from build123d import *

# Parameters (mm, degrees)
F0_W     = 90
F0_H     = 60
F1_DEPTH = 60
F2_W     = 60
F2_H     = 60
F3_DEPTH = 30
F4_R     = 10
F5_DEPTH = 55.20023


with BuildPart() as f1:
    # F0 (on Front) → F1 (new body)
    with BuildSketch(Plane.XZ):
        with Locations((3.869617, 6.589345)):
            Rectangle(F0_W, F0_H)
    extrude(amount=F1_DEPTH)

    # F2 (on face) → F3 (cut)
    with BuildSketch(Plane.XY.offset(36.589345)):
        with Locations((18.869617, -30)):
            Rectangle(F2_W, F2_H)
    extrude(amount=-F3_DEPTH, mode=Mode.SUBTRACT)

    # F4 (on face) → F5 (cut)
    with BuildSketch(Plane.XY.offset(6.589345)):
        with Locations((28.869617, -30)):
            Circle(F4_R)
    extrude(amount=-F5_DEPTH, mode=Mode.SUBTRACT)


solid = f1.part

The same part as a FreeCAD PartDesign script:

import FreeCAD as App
import Part
import Sketcher
from FreeCAD import Vector
Q = App.Units.Quantity


def add_polygon(sketch, points):
    """Adds a closed chain of lines whose ends are joined by coincident constraints."""
    first, n = sketch.GeometryCount, len(points)
    for a, b in zip(points, points[1:] + points[:1]):
        sketch.addGeometry(Part.LineSegment(App.Vector(*a, 0), App.Vector(*b, 0)), False)
    for i in range(n):
        sketch.addConstraint(Sketcher.Constraint("Coincident", first + i, 2, first + (i + 1) % n, 1))

doc = App.newDocument("Part")
params = doc.addObject("Spreadsheet::Sheet", "Params")
for row, (alias, value) in enumerate([
    ("sketch1_width", "90 mm"),
    ("sketch1_height", "60 mm"),
    ("pad1_length", "60 mm"),
    ("sketch2_width", "60 mm"),
    ("pocket1_length", "30 mm"),
    ("sketch3_diameter", "20 mm"),
    ("pocket2_length", "55.20023 mm"),
], start=1):
    params.set(f"A{row}", alias)
    params.set(f"B{row}", "=" + value)
    params.setAlias(f"B{row}", alias)

body = doc.addObject("PartDesign::Body", "Body")

# Sketch on XZ plane
sketch1 = doc.addObject("Sketcher::SketchObject", "Sketch")
body.addObject(sketch1)
sketch1.AttachmentSupport = (doc.XZ_Plane, [""])
sketch1.MapMode = "FlatFace"
add_polygon(sketch1, [(-41, 37), (-41, -23), (49, -23), (49, 37)])  # lines 0-3
sketch1.addConstraint(Sketcher.Constraint("Vertical", 0))
sketch1.addConstraint(Sketcher.Constraint("Horizontal", 1))
sketch1.addConstraint(Sketcher.Constraint("Vertical", 2))
sketch1.addConstraint(Sketcher.Constraint("Horizontal", 3))
sketch1.addConstraint(Sketcher.Constraint("DistanceX", 1, 1, 1, 2, Q("90 mm")))
sketch1.addConstraint(Sketcher.Constraint("DistanceY", 0, 2, 0, 1, Q("60 mm")))
sketch1.addConstraint(Sketcher.Constraint("DistanceX", 0, 2, -1, 1, Q("41.130383 mm")))
sketch1.addConstraint(Sketcher.Constraint("DistanceY", 0, 2, -1, 1, Q("23.410655 mm")))
sketch1.setExpression("Constraints[8]", "Params.sketch1_width")
sketch1.setExpression("Constraints[9]", "Params.sketch1_height")
pad1 = doc.addObject("PartDesign::Pad", "Pad")
body.addObject(pad1)
pad1.Profile = sketch1
pad1.setExpression("Length", "Params.pad1_length")

# Sketch on XY plane
sketch2 = doc.addObject("Sketcher::SketchObject", "Sketch001")
body.addObject(sketch2)
sketch2.AttachmentSupport = (doc.XY_Plane, [""])
sketch2.MapMode = "FlatFace"
sketch2.AttachmentOffset = App.Placement(Vector(0, 0, 36.589345), App.Rotation())
add_polygon(sketch2, [(-11, 0), (-11, -60), (49, -60), (49, 0)])  # lines 0-3
sketch2.addConstraint(Sketcher.Constraint("Vertical", 0))
sketch2.addConstraint(Sketcher.Constraint("Horizontal", 1))
sketch2.addConstraint(Sketcher.Constraint("Vertical", 2))
sketch2.addConstraint(Sketcher.Constraint("Horizontal", 3))
sketch2.addConstraint(Sketcher.Constraint("PointOnObject", 2, 2, -1))
sketch2.addConstraint(Sketcher.Constraint("Equal", 3, 0))
sketch2.addConstraint(Sketcher.Constraint("DistanceX", 1, 1, 1, 2, Q("60 mm")))
sketch2.addConstraint(Sketcher.Constraint("DistanceX", 0, 2, -1, 1, Q("11.130383 mm")))
sketch2.setExpression("Constraints[10]", "Params.sketch2_width")
pocket1 = doc.addObject("PartDesign::Pocket", "Pocket")
body.addObject(pocket1)
pocket1.Profile = sketch2
pocket1.setExpression("Length", "Params.pocket1_length")

# Sketch on XY plane
sketch3 = doc.addObject("Sketcher::SketchObject", "Sketch002")
body.addObject(sketch3)
sketch3.AttachmentSupport = (doc.XY_Plane, [""])
sketch3.MapMode = "FlatFace"
sketch3.AttachmentOffset = App.Placement(Vector(0, 0, 6.589345), App.Rotation())
sketch3.addGeometry(Part.Circle(Vector(29, -30, 0), Vector(0, 0, 1), 10), False)
sketch3.addConstraint(Sketcher.Constraint("Diameter", 0, Q("20 mm")))
sketch3.addConstraint(Sketcher.Constraint("DistanceY", 0, 3, -1, 1, Q("30 mm")))
sketch3.addConstraint(Sketcher.Constraint("DistanceX", -1, 1, 0, 3, Q("28.869617 mm")))
sketch3.setExpression("Constraints[0]", "Params.sketch3_diameter")
pocket2 = doc.addObject("PartDesign::Pocket", "Pocket001")
body.addObject(pocket2)
pocket2.Profile = sketch3
pocket2.setExpression("Length", "Params.pocket2_length")

doc.recompute()
